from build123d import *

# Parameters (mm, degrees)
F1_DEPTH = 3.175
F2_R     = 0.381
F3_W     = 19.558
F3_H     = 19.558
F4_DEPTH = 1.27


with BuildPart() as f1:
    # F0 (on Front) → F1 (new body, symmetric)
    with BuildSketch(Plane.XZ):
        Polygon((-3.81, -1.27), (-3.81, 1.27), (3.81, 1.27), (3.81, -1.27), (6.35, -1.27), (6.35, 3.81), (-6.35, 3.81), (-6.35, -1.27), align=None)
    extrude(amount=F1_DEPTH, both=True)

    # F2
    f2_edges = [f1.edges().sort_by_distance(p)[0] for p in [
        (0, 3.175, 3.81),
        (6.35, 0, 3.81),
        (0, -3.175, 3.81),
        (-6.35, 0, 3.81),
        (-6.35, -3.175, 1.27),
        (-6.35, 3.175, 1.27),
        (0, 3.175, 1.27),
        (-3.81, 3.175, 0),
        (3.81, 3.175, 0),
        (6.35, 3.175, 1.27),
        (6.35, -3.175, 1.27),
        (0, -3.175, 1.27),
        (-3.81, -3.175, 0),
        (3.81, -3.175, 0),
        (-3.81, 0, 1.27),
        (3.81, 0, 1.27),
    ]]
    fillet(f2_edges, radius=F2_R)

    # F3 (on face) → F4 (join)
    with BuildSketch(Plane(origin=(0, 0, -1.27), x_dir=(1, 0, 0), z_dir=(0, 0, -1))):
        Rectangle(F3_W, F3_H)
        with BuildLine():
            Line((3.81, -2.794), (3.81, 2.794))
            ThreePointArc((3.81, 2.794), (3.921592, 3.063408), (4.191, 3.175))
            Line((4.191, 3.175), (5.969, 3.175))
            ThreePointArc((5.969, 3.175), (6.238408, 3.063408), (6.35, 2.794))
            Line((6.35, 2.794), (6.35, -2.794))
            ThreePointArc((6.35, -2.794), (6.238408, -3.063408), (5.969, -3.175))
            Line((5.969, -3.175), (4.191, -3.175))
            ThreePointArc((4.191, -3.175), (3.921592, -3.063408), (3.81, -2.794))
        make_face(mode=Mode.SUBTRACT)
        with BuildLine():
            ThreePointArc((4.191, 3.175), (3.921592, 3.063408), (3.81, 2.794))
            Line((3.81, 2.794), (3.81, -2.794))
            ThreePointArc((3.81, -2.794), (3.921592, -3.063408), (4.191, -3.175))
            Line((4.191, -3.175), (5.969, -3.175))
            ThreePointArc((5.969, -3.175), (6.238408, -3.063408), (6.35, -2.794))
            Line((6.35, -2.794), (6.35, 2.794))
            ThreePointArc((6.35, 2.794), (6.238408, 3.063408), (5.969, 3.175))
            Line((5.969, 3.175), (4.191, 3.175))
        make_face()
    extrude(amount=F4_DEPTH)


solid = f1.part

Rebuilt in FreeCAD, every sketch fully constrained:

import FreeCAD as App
import Part
import Sketcher
from FreeCAD import Vector
Q = App.Units.Quantity


def edges_at(feature, points):
    """Names of the edges that pass closest to the given points."""
    edges = feature.Shape.Edges
    near = lambda p: min(range(len(edges)), key=lambda i: edges[i].distToShape(Part.Vertex(*p))[0])
    return sorted({f"Edge{near(p) + 1}" for p in points})

doc = App.newDocument("Part")
body = doc.addObject("PartDesign::Body", "Body")

sketch1 = doc.addObject("Sketcher::SketchObject", "Sketch")
body.addObject(sketch1)
sketch1.AttachmentSupport = (doc.XZ_Plane, [""])
sketch1.MapMode = "FlatFace"
sketch1.addGeometry(Part.LineSegment(Vector(-3.8, -1.3, 0), Vector(-3.8, 1.3, 0)), False)
sketch1.addGeometry(Part.LineSegment(Vector(-3.8, 1.3, 0), Vector(3.8, 1.3, 0)), False)
sketch1.addGeometry(Part.LineSegment(Vector(3.8, 1.3, 0), Vector(3.8, -1.3, 0)), False)
sketch1.addGeometry(Part.LineSegment(Vector(3.8, -1.3, 0), Vector(6.3, -1.3, 0)), False)
sketch1.addGeometry(Part.LineSegment(Vector(6.3, -1.3, 0), Vector(6.3, 3.8, 0)), False)
sketch1.addGeometry(Part.LineSegment(Vector(6.3, 3.8, 0), Vector(-6.3, 3.8, 0)), False)
sketch1.addGeometry(Part.LineSegment(Vector(-6.3, 3.8, 0), Vector(-6.3, -1.3, 0)), False)
sketch1.addGeometry(Part.LineSegment(Vector(-6.3, -1.3, 0), Vector(-3.8, -1.3, 0)), False)
sketch1.addConstraint(Sketcher.Constraint("Coincident", 0, 2, 1, 1))
sketch1.addConstraint(Sketcher.Constraint("Coincident", 1, 2, 2, 1))
sketch1.addConstraint(Sketcher.Constraint("Coincident", 2, 2, 3, 1))
sketch1.addConstraint(Sketcher.Constraint("Coincident", 3, 2, 4, 1))
sketch1.addConstraint(Sketcher.Constraint("Coincident", 4, 2, 5, 1))
sketch1.addConstraint(Sketcher.Constraint("Coincident", 5, 2, 6, 1))
sketch1.addConstraint(Sketcher.Constraint("Coincident", 6, 2, 7, 1))
sketch1.addConstraint(Sketcher.Constraint("Coincident", 7, 2, 0, 1))
sketch1.addConstraint(Sketcher.Constraint("Vertical", 0))
sketch1.addConstraint(Sketcher.Constraint("Horizontal", 1))
sketch1.addConstraint(Sketcher.Constraint("Vertical", 2))
sketch1.addConstraint(Sketcher.Constraint("Horizontal", 3))
sketch1.addConstraint(Sketcher.Constraint("Vertical", 4))
sketch1.addConstraint(Sketcher.Constraint("Horizontal", 5))
sketch1.addConstraint(Sketcher.Constraint("Vertical", 6))
sketch1.addConstraint(Sketcher.Constraint("Horizontal", 7))
sketch1.addConstraint(Sketcher.Constraint("Symmetric", 0, 2, 2, 2, -1, 1))
sketch1.addConstraint(Sketcher.Constraint("Symmetric", 3, 2, 6, 2, -2))
sketch1.addConstraint(Sketcher.Constraint("Equal", 7, 0))
sketch1.addConstraint(Sketcher.Constraint("DistanceX", 1, 1, 1, 2, Q("0.3 in")))
sketch1.addConstraint(Sketcher.Constraint("DistanceX", 3, 1, 3, 2, Q("0.1 in")))
sketch1.addConstraint(Sketcher.Constraint("DistanceY", 4, 1, 4, 2, Q("0.2 in")))
pad1 = doc.addObject("PartDesign::Pad", "Pad")
body.addObject(pad1)
pad1.Profile = sketch1
pad1.Length = Q("0.25 in")
pad1.Midplane = True
doc.recompute()

fillet = doc.addObject("PartDesign::Fillet", "Fillet")
body.addObject(fillet)
fillet.Base = (pad1, edges_at(pad1, [
    (0, 3.175, 3.81),
    (6.35, 0, 3.81),
    (0, -3.175, 3.81),
    (-6.35, 0, 3.81),
    (-6.35, -3.175, 1.27),
    (-6.35, 3.175, 1.27),
    (0, 3.175, 1.27),
    (-3.81, 3.175, 0),
    (3.81, 3.175, 0),
    (6.35, 3.175, 1.27),
    (6.35, -3.175, 1.27),
    (0, -3.175, 1.27),
    (-3.81, -3.175, 0),
    (3.81, -3.175, 0),
    (-3.81, 0, 1.27),
    (3.81, 0, 1.27),
]))
fillet.Radius = Q("0.015 in")

sketch2 = doc.addObject("Sketcher::SketchObject", "Sketch001")
body.addObject(sketch2)
sketch2.AttachmentSupport = (doc.XY_Plane, [""])
sketch2.MapMode = "FlatFace"
sketch2.AttachmentOffset = App.Placement(Vector(0, 0, -0.05 * 25.4), App.Rotation())
sketch2.addGeometry(Part.LineSegment(Vector(-10, -10, 0), Vector(-10, 10, 0)), False)
sketch2.addGeometry(Part.LineSegment(Vector(-10, 10, 0), Vector(10, 10, 0)), False)
sketch2.addGeometry(Part.LineSegment(Vector(10, 10, 0), Vector(10, -10, 0)), False)
sketch2.addGeometry(Part.LineSegment(Vector(10, -10, 0), Vector(-10, -10, 0)), False)
sketch2.addConstraint(Sketcher.Constraint("Coincident", 0, 2, 1, 1))
sketch2.addConstraint(Sketcher.Constraint("Coincident", 1, 2, 2, 1))
sketch2.addConstraint(Sketcher.Constraint("Coincident", 2, 2, 3, 1))
sketch2.addConstraint(Sketcher.Constraint("Coincident", 3, 2, 0, 1))
sketch2.addConstraint(Sketcher.Constraint("Vertical", 0))
sketch2.addConstraint(Sketcher.Constraint("Horizontal", 1))
sketch2.addConstraint(Sketcher.Constraint("Vertical", 2))
sketch2.addConstraint(Sketcher.Constraint("Horizontal", 3))
sketch2.addConstraint(Sketcher.Constraint("Symmetric", 0, 2, 2, 2, -1, 1))
sketch2.addConstraint(Sketcher.Constraint("Equal", 3, 0))
sketch2.addConstraint(Sketcher.Constraint("DistanceX", 1, 1, 1, 2, Q("0.77 in")))
pad2 = doc.addObject("PartDesign::Pad", "Pad001")
body.addObject(pad2)
pad2.Profile = sketch2
pad2.Length = Q("0.05 in")
pad2.Reversed = True

doc.recompute()
